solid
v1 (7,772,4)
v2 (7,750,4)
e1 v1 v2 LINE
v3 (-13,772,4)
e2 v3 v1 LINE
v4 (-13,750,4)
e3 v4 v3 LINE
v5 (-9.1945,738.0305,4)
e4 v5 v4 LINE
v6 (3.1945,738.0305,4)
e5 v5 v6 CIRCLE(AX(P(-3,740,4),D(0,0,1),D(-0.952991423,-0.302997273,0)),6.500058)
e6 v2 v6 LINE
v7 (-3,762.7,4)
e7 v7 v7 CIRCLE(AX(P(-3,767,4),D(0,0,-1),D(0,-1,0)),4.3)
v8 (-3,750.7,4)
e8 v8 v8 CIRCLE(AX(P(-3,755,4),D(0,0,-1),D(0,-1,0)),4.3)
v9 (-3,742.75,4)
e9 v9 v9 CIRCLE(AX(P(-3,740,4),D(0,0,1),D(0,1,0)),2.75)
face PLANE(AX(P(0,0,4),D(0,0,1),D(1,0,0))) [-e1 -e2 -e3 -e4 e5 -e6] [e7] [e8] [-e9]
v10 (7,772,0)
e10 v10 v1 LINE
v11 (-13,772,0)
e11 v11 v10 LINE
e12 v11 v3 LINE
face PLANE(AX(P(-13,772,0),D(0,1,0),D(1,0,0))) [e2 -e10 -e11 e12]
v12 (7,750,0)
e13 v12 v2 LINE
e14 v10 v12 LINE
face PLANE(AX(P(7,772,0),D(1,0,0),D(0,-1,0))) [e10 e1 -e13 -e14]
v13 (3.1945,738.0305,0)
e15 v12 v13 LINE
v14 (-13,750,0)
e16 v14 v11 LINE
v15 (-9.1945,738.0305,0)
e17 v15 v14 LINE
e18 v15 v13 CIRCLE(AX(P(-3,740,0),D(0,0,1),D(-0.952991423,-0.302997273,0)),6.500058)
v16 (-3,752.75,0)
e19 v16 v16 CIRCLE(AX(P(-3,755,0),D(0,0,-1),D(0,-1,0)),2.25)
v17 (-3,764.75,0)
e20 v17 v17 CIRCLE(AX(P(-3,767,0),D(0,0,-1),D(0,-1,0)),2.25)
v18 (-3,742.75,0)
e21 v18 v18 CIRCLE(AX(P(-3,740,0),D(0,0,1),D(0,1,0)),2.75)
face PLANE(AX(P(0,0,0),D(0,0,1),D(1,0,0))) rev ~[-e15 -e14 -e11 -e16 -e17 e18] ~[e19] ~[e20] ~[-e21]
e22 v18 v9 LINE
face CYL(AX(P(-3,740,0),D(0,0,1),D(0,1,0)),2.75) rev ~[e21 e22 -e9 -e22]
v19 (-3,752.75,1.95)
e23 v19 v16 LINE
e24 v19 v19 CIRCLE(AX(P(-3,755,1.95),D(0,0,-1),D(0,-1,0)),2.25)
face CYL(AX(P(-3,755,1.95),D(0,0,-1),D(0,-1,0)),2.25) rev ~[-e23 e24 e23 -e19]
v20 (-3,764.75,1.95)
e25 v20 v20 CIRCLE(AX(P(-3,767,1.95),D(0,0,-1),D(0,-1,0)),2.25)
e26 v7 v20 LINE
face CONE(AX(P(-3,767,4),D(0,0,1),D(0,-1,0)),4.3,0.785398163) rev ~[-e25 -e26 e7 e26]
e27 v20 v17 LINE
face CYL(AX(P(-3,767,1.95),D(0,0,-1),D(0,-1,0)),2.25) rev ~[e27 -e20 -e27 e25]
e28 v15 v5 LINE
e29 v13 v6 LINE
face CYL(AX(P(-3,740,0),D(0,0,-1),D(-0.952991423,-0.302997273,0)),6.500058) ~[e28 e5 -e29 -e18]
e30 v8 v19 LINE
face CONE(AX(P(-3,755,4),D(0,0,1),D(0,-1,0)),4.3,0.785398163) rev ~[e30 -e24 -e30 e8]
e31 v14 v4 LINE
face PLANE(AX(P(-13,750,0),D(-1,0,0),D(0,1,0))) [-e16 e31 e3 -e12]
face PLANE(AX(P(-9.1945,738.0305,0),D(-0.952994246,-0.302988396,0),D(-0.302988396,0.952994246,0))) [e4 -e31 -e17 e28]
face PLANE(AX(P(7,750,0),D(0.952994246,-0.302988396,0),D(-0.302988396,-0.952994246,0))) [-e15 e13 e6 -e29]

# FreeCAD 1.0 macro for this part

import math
import FreeCAD as App
import Part
import Sketcher
Q = App.Units.Quantity

doc = App.newDocument("Part")
body = doc.addObject("PartDesign::Body", "Body")

# Sketch on XY plane
sketch1 = body.newObject("Sketcher::SketchObject", "Sketch")
sketch1.AttachmentSupport = (doc.getObject("XY_Plane"), [""])
sketch1.MapMode = "FlatFace"
sketch1.addGeometry(Part.LineSegment(App.Vector(7, 750, 0), App.Vector(7, 772, 0)), False)
sketch1.addGeometry(Part.LineSegment(App.Vector(7, 772, 0), App.Vector(-13, 772, 0)), False)
sketch1.addGeometry(Part.LineSegment(App.Vector(-13, 772, 0), App.Vector(-13, 750, 0)), False)
sketch1.addGeometry(Part.LineSegment(App.Vector(-13, 750, 0), App.Vector(-9, 738, 0)), False)
sketch1.addGeometry(Part.ArcOfCircle(Part.Circle(App.Vector(-3, 740, 0), App.Vector(0, 0, 1), 7), math.radians(-162), math.radians(-18)), False)
sketch1.addGeometry(Part.LineSegment(App.Vector(3, 738, 0), App.Vector(7, 750, 0)), False)
sketch1.addConstraint(Sketcher.Constraint("Coincident", 0, 2, 1, 1))
sketch1.addConstraint(Sketcher.Constraint("Coincident", 1, 2, 2, 1))
sketch1.addConstraint(Sketcher.Constraint("Coincident", 2, 2, 3, 1))
sketch1.addConstraint(Sketcher.Constraint("Tangent", 3, 2, 4, 1))
sketch1.addConstraint(Sketcher.Constraint("Tangent", 4, 2, 5, 1))
sketch1.addConstraint(Sketcher.Constraint("Coincident", 5, 2, 0, 1))
sketch1.addConstraint(Sketcher.Constraint("Vertical", 0))
sketch1.addConstraint(Sketcher.Constraint("Horizontal", 1))
sketch1.addConstraint(Sketcher.Constraint("Vertical", 2))
sketch1.addConstraint(Sketcher.Constraint("Horizontal", 3, 2, 4, 2))
sketch1.addConstraint(Sketcher.Constraint("Horizontal", 2, 2, 5, 2))
sketch1.addConstraint(Sketcher.Constraint("Radius", 4, Q("6.5 mm")))
sketch1.addConstraint(Sketcher.Constraint("DistanceX", 1, 2, 1, 1, Q("20 mm")))
sketch1.addConstraint(Sketcher.Constraint("DistanceY", 0, 1, 0, 2, Q("22 mm")))
sketch1.addConstraint(Sketcher.Constraint("DistanceX", 4, 3, -1, 1, Q("3 mm")))
sketch1.addConstraint(Sketcher.Constraint("DistanceY", -1, 1, 4, 3, Q("740 mm")))
sketch1.addConstraint(Sketcher.Constraint("DistanceY", -1, 1, 0, 2, Q("772 mm")))
pad1 = body.newObject("PartDesign::Pad", "Pad")
pad1.Profile = sketch1
pad1.Length = 4

# Sketch on XY plane
sketch2 = body.newObject("Sketcher::SketchObject", "Sketch001")
sketch2.AttachmentSupport = (doc.getObject("XY_Plane"), [""])
sketch2.MapMode = "FlatFace"
sketch2.addGeometry(Part.Circle(App.Vector(-3, 740, 0), App.Vector(0, 0, 1), 2.8), False)
sketch2.addConstraint(Sketcher.Constraint("Diameter", 0, Q("5.5 mm")))
sketch2.addConstraint(Sketcher.Constraint("DistanceX", 0, 3, -1, 1, Q("3 mm")))
sketch2.addConstraint(Sketcher.Constraint("DistanceY", -1, 1, 0, 3, Q("740 mm")))
doc.recompute()
hole = body.newObject("PartDesign::Hole", "Hole")
hole.Profile = sketch2
hole.ThreadType = "None"
hole.Diameter = 5.5
hole.DepthType = "ThroughAll"
hole.Reversed = True

# Sketch on XY plane
sketch3 = body.newObject("Sketcher::SketchObject", "Sketch002")
sketch3.AttachmentSupport = (doc.getObject("XY_Plane"), [""])
sketch3.MapMode = "FlatFace"
sketch3.AttachmentOffset = App.Placement(App.Vector(0, 0, 4), App.Rotation())
sketch3.addGeometry(Part.Circle(App.Vector(-3, 767, 0), App.Vector(0, 0, 1), 2.2), False)
sketch3.addGeometry(Part.Circle(App.Vector(-3, 755, 0), App.Vector(0, 0, 1), 2.2), False)
sketch3.addConstraint(Sketcher.Constraint("Equal", 0, 1))
sketch3.addConstraint(Sketcher.Constraint("Vertical", 0, 3, 1, 3))
sketch3.addConstraint(Sketcher.Constraint("Diameter", 0, Q("4.5 mm")))
sketch3.addConstraint(Sketcher.Constraint("DistanceX", 0, 3, -1, 1, Q("3 mm")))
sketch3.addConstraint(Sketcher.Constraint("DistanceY", -1, 1, 0, 3, Q("767 mm")))
sketch3.addConstraint(Sketcher.Constraint("DistanceY", -1, 1, 1, 3, Q("755 mm")))
doc.recompute()
hole2 = body.newObject("PartDesign::Hole", "Hole001")
hole2.Profile = sketch3
hole2.ThreadType = "None"
hole2.Diameter = 4.5
hole2.DepthType = "ThroughAll"
hole2.HoleCutType = "Countersink"
hole2.HoleCutDiameter = 8.6
hole2.HoleCutCountersinkAngle = 90

doc.recompute()
